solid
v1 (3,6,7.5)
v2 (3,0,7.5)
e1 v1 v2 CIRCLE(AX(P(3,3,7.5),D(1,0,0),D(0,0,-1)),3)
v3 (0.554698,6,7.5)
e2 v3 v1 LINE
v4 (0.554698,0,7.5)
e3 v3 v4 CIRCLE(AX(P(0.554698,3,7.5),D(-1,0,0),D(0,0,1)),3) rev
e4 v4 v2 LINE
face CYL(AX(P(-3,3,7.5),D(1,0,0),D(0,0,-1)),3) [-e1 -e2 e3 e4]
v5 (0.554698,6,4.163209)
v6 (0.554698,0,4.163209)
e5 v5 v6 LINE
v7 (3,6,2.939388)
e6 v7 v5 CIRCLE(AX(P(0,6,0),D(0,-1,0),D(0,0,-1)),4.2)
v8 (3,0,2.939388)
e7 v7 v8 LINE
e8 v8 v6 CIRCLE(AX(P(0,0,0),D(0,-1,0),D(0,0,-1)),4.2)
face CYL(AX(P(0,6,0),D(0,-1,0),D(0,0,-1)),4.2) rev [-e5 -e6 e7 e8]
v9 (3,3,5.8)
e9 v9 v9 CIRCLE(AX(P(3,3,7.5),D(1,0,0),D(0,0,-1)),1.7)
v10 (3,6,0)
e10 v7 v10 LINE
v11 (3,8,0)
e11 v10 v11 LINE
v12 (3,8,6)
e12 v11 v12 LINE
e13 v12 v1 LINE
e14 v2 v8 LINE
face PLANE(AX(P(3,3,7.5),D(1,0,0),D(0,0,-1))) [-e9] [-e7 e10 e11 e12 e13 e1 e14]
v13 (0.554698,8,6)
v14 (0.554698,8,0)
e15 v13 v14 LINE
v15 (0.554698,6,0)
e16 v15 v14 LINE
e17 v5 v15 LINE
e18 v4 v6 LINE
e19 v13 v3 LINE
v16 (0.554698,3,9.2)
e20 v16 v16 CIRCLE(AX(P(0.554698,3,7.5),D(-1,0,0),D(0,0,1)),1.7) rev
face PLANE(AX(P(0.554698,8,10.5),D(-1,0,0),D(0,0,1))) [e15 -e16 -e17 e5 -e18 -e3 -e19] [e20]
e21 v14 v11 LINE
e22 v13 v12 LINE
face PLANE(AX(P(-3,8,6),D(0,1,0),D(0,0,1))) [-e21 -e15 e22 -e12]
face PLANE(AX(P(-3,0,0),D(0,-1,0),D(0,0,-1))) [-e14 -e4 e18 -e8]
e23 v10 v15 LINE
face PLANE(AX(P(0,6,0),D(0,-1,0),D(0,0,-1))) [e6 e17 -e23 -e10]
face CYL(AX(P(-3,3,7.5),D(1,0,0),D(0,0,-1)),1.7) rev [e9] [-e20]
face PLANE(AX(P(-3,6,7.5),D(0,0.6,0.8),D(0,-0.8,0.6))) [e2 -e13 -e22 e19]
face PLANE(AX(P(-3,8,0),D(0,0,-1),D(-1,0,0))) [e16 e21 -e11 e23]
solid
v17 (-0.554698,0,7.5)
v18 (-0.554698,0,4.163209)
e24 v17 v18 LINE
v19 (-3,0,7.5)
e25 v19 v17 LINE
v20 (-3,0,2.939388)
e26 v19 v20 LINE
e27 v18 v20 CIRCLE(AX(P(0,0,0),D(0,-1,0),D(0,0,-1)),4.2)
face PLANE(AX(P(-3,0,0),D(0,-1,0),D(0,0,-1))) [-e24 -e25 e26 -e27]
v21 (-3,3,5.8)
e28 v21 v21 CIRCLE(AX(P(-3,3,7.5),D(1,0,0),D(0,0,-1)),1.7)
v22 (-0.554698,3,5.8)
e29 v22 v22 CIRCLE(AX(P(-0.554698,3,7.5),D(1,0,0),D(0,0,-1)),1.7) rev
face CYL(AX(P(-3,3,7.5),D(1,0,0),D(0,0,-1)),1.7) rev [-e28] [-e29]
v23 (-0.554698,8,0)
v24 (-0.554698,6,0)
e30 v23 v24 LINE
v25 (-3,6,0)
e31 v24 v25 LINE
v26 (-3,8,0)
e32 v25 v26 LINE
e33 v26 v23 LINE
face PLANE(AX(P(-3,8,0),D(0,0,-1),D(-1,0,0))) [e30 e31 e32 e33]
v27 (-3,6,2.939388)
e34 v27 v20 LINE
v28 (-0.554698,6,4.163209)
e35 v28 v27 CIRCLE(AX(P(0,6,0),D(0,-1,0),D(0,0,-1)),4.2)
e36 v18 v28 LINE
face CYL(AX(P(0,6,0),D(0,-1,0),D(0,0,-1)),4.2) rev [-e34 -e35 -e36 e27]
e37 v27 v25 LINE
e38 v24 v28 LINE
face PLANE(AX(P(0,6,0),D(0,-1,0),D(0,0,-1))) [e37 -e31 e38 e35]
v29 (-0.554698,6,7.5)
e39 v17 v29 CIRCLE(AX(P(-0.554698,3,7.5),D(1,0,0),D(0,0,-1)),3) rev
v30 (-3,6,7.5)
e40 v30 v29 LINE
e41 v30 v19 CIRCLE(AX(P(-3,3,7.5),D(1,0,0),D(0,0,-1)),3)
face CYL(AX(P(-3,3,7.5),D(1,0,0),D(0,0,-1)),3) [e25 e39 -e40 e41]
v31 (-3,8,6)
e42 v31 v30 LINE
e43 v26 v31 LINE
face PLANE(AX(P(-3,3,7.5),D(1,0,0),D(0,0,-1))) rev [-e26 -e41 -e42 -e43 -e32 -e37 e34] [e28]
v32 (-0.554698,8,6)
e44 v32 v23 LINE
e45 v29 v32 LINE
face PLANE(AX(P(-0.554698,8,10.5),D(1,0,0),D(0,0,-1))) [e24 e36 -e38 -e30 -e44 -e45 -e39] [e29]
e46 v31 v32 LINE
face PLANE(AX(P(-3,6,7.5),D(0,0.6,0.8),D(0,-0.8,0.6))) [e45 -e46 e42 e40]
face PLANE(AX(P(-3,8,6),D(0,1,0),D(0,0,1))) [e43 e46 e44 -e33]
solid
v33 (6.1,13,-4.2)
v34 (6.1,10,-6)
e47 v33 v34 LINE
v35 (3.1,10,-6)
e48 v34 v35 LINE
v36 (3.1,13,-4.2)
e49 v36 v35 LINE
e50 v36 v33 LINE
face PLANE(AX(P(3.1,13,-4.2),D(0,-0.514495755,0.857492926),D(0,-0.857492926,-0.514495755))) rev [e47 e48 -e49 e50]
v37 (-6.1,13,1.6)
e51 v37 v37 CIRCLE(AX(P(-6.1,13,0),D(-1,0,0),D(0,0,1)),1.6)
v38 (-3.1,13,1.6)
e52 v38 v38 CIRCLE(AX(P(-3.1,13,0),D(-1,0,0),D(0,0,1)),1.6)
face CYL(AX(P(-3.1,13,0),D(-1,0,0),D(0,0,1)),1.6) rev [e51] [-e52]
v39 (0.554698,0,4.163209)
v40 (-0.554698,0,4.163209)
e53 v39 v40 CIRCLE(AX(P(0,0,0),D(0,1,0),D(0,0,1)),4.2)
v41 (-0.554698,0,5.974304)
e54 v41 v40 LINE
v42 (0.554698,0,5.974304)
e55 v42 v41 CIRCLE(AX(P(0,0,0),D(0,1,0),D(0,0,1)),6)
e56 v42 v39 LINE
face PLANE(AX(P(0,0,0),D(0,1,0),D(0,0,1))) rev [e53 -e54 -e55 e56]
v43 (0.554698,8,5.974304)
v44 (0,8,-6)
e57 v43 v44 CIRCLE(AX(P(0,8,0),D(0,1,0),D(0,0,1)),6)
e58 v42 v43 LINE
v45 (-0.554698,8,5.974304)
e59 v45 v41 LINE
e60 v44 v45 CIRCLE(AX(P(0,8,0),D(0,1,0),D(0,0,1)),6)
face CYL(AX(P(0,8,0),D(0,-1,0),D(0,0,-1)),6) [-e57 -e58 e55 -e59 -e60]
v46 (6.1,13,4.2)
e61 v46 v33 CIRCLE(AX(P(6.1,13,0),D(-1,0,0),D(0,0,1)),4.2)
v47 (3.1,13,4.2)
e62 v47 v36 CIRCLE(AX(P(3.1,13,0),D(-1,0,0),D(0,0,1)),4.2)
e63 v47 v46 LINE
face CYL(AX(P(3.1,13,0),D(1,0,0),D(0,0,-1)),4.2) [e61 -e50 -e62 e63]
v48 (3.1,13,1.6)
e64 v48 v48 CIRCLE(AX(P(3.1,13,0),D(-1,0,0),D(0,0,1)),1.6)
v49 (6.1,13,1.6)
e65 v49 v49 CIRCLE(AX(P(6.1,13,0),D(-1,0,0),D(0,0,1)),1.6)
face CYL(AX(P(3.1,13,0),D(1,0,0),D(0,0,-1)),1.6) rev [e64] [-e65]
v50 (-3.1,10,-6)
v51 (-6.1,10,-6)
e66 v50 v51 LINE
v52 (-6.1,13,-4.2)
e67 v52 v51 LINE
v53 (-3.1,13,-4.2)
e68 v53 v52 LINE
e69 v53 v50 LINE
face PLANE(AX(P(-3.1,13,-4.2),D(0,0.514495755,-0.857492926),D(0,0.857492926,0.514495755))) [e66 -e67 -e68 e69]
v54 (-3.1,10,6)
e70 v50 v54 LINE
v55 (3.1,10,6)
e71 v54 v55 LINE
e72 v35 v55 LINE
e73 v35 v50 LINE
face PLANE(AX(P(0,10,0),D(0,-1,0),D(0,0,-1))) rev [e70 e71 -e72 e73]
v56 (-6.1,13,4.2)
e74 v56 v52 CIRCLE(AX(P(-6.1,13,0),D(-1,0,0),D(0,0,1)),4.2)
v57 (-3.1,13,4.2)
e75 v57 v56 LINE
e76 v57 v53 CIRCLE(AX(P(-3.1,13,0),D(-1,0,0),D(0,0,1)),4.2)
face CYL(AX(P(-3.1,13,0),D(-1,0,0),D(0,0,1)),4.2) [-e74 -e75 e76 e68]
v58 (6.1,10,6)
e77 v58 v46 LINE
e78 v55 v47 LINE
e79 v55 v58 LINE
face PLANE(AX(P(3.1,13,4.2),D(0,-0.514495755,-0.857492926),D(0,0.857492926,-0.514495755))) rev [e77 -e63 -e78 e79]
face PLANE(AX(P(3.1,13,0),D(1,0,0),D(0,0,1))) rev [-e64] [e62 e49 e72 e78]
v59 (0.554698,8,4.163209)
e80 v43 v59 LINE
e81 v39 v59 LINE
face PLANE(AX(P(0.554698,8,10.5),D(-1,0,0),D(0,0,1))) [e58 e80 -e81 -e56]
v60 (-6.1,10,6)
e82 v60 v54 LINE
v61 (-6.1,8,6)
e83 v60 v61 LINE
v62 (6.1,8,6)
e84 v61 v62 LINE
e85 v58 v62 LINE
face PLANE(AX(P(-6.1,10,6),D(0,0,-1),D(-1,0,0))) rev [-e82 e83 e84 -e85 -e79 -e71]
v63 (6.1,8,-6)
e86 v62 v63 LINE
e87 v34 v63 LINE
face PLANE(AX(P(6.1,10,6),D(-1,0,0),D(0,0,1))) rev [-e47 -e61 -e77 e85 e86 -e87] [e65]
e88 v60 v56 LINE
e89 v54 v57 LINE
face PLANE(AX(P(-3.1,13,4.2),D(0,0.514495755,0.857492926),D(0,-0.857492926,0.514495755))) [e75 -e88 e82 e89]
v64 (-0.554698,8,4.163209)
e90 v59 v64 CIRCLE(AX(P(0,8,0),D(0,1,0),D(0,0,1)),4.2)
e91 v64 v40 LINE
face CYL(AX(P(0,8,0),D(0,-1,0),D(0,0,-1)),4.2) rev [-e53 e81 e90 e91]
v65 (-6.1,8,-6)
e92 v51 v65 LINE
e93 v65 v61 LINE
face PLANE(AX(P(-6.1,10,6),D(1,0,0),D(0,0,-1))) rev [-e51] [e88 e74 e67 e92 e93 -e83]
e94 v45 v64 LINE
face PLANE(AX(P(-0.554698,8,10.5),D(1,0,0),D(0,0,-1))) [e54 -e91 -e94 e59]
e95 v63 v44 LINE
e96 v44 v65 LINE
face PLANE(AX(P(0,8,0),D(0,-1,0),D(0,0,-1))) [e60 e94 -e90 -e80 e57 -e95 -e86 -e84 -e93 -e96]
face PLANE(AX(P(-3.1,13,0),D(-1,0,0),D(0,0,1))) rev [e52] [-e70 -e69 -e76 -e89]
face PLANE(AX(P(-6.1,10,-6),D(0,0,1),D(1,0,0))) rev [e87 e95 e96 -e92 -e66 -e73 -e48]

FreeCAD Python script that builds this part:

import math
import FreeCAD as App
import Part
import Sketcher

V = App.Vector


def add_polygon(sketch, points):
    """Adds a closed chain of lines whose ends are joined by coincident constraints."""
    first, n = sketch.GeometryCount, len(points)
    for a, b in zip(points, points[1:] + points[:1]):
        sketch.addGeometry(Part.LineSegment(App.Vector(*a, 0), App.Vector(*b, 0)), False)
    for i in range(n):
        sketch.addConstraint(Sketcher.Constraint("Coincident", first + i, 2, first + (i + 1) % n, 1))

doc = App.newDocument("Part")
body = doc.addObject("PartDesign::Body", "Body")

# Sketch on XZ plane
sketch1 = doc.addObject("Sketcher::SketchObject", "Sketch")
body.addObject(sketch1)
sketch1.AttachmentSupport = (doc.XZ_Plane, [""])
sketch1.MapMode = "FlatFace"
sketch1.addGeometry([
    Part.Circle(V(0, 0, 0), V(0, 0, 1), 6),
    Part.Circle(V(0, 0, 0), V(0, 0, 1), 4.2),
], False)
sketch1.addConstraint([
    Sketcher.Constraint("Coincident", 0, 3, -1, 1),
    Sketcher.Constraint("Coincident", 1, 3, -1, 1),
    Sketcher.Constraint("Diameter", 0, 12.0),
    Sketcher.Constraint("Diameter", 1, 8.4),
])
pad1 = doc.addObject("PartDesign::Pad", "Pad")
body.addObject(pad1)
pad1.Profile = sketch1
pad1.Length = 8
pad1.Reversed = True

# Sketch on XZ plane
sketch2 = doc.addObject("Sketcher::SketchObject", "Sketch001")
body.addObject(sketch2)
sketch2.AttachmentSupport = (doc.XZ_Plane, [""])
sketch2.MapMode = "FlatFace"
sketch2.AttachmentOffset = App.Placement(V(0, 0, -8), App.Rotation())
add_polygon(sketch2, [(-6, -6), (-6, 6), (6, 6), (6, -6)])  # lines 0-3
sketch2.addConstraint([
    Sketcher.Constraint("Vertical", 0),
    Sketcher.Constraint("Horizontal", 1),
    Sketcher.Constraint("Vertical", 2),
    Sketcher.Constraint("Horizontal", 3),
    Sketcher.Constraint("Symmetric", 0, 2, 2, 2, -1, 1),
    Sketcher.Constraint("DistanceY", 0, 1, 0, 2, 12.0),
    Sketcher.Constraint("DistanceX", 1, 1, 1, 2, 12.2),
])
pad2 = doc.addObject("PartDesign::Pad", "Pad001")
body.addObject(pad2)
pad2.Profile = sketch2
pad2.Length = 2
pad2.Reversed = True

# Sketch on YZ plane
sketch3 = doc.addObject("Sketcher::SketchObject", "Sketch002")
body.addObject(sketch3)
sketch3.AttachmentSupport = (doc.YZ_Plane, [""])
sketch3.MapMode = "FlatFace"
sketch3.AttachmentOffset = App.Placement(V(0, 0, -6.1), App.Rotation())
sketch3.addGeometry([
    Part.LineSegment(V(10, -6, 0), V(10, 6, 0)),  # 0
    Part.LineSegment(V(10, 6, 0), V(13, 4.2, 0)),  # 1
    Part.ArcOfCircle(Part.Circle(V(13, 0, 0), V(0, 0, 1), 4.2), math.radians(-90), math.radians(90)),  # 2
    Part.LineSegment(V(13, -4.2, 0), V(10, -6, 0)),  # 3
    Part.Circle(V(13, 0, 0), V(0, 0, 1), 1.6),  # 4
], False)
sketch3.addConstraint([
    Sketcher.Constraint("Coincident", 0, 2, 1, 1),
    Sketcher.Constraint("Coincident", 1, 2, 2, 2),
    Sketcher.Constraint("Coincident", 2, 1, 3, 1),
    Sketcher.Constraint("Coincident", 3, 2, 0, 1),
    Sketcher.Constraint("Vertical", 0),
    Sketcher.Constraint("Coincident", 4, 3, 2, 3),
    Sketcher.Constraint("Symmetric", 1, 2, 2, 1, -1),
    Sketcher.Constraint("Vertical", 4, 3, 1, 2),
    Sketcher.Constraint("Equal", 1, 3),
    Sketcher.Constraint("Diameter", 4, 3.2),
    Sketcher.Constraint("Radius", 2, 4.2),
    Sketcher.Constraint("DistanceY", 0, 1, 0, 2, 12.0),
    Sketcher.Constraint("DistanceX", -1, 1, 2, 3, 13.0),
    Sketcher.Constraint("DistanceX", -1, 1, 0, 2, 10.0),
])
pad3 = doc.addObject("PartDesign::Pad", "Pad002")
body.addObject(pad3)
pad3.Profile = sketch3
pad3.Length = 3
doc.recompute()

mirrored = doc.addObject("PartDesign::Mirrored", "Mirrored")
body.addObject(mirrored)
mirrored.Originals = [pad2, pad3]
mirrored.MirrorPlane = (doc.YZ_Plane, [""])
body.Tip = mirrored
body2 = doc.addObject("PartDesign::Body", "Body001")

# Sketch on YZ plane
sketch4 = doc.addObject("Sketcher::SketchObject", "Sketch003")
body2.addObject(sketch4)
sketch4.AttachmentSupport = (doc.getObject("YZ_Plane001"), [""])
sketch4.MapMode = "FlatFace"
sketch4.addGeometry([
    Part.LineSegment(V(8, 0, 0), V(8, 6, 0)),  # 0
    Part.LineSegment(V(8, 6, 0), V(6, 7.5, 0)),  # 1
    Part.ArcOfCircle(Part.Circle(V(3, 7.5, 0), V(0, 0, 1), 3), math.radians(0), math.radians(180)),  # 2
    Part.LineSegment(V(0, 7.5, 0), V(0, 0, 0)),  # 3
    Part.LineSegment(V(0, 0, 0), V(8, 0, 0)),  # 4
    Part.Circle(V(3, 7.5, 0), V(0, 0, 1), 1.7),  # 5
], False)
sketch4.addConstraint([
    Sketcher.Constraint("Coincident", 0, 2, 1, 1),
    Sketcher.Constraint("Coincident", 1, 2, 2, 1),
    Sketcher.Constraint("Tangent", 2, 2, 3, 1),
    Sketcher.Constraint("Coincident", 3, 2, 4, 1),
    Sketcher.Constraint("Coincident", 4, 2, 0, 1),
    Sketcher.Constraint("Vertical", 0),
    Sketcher.Constraint("Vertical", 3),
    Sketcher.Constraint("Horizontal", 4),
    Sketcher.Constraint("Coincident", 3, 2, -1, 1),
    Sketcher.Constraint("Coincident", 5, 3, 2, 3),
    Sketcher.Constraint("Horizontal", 5, 3, 1, 2),
    Sketcher.Constraint("Radius", 2, 3.0),
    Sketcher.Constraint("Diameter", 5, 3.4),
    Sketcher.Constraint("DistanceX", 4, 1, 4, 2, 8.0),
    Sketcher.Constraint("DistanceY", 0, 1, 0, 2, 6.0),
    Sketcher.Constraint("DistanceY", 3, 2, 3, 1, 7.5),
])
pad4 = doc.addObject("PartDesign::Pad", "Pad003")
body2.addObject(pad4)
pad4.Profile = sketch4
pad4.Type = "TwoLengths"
pad4.Length = 3
pad4.Length2 = 3

# Sketch on XZ plane
sketch5 = doc.addObject("Sketcher::SketchObject", "Sketch004")
body2.addObject(sketch5)
sketch5.AttachmentSupport = (doc.getObject("XZ_Plane001"), [""])
sketch5.MapMode = "FlatFace"
sketch5.addGeometry(Part.Circle(V(0, 0, 0), V(0, 0, 1), 4.2), False)
sketch5.addConstraint([
    Sketcher.Constraint("Coincident", 0, 3, -1, 1),
    Sketcher.Constraint("Diameter", 0, 8.4),
])
pocket1 = doc.addObject("PartDesign::Pocket", "Pocket")
body2.addObject(pocket1)
pocket1.Profile = sketch5
pocket1.Length = 6
body3 = doc.addObject("PartDesign::Body", "Body002")

# Sketch on XY plane
sketch6 = doc.addObject("Sketcher::SketchObject", "Sketch005")
body3.addObject(sketch6)
sketch6.AttachmentSupport = (doc.getObject("XY_Plane002"), [""])
sketch6.MapMode = "FlatFace"
add_polygon(sketch6, [(-0.6, 8), (-0.6, 0), (0.6, 0), (0.6, 8)])  # lines 0-3
sketch6.addConstraint([
    Sketcher.Constraint("Vertical", 0),
    Sketcher.Constraint("Horizontal", 1),
    Sketcher.Constraint("Vertical", 2),
    Sketcher.Constraint("Horizontal", 3),
    Sketcher.Constraint("Symmetric", 0, 2, 1, 2, -1, 1),
    Sketcher.Constraint("DistanceY", 0, 2, 0, 1, 8.0),
    Sketcher.Constraint("DistanceX", 0, 2, -1, 1, 0.554698),
])
pad5 = doc.addObject("PartDesign::Pad", "Pad004")
body3.addObject(pad5)
pad5.Profile = sketch6
pad5.Length = 22.054691
doc.recompute()

body4 = doc.addObject("PartDesign::Body", "Body003")
body4.BaseFeature = body3
boolean = doc.addObject("PartDesign::Boolean", "Boolean")
body.addObject(boolean)
boolean.Type = "Cut"
boolean.addObjects([body4])
doc.recompute()
body2.AllowCompound = True
doc.recompute()

boolean2 = doc.addObject("PartDesign::Boolean", "Boolean001")
body2.addObject(boolean2)
boolean2.Type = "Cut"
boolean2.addObjects([body3])

doc.recompute()
